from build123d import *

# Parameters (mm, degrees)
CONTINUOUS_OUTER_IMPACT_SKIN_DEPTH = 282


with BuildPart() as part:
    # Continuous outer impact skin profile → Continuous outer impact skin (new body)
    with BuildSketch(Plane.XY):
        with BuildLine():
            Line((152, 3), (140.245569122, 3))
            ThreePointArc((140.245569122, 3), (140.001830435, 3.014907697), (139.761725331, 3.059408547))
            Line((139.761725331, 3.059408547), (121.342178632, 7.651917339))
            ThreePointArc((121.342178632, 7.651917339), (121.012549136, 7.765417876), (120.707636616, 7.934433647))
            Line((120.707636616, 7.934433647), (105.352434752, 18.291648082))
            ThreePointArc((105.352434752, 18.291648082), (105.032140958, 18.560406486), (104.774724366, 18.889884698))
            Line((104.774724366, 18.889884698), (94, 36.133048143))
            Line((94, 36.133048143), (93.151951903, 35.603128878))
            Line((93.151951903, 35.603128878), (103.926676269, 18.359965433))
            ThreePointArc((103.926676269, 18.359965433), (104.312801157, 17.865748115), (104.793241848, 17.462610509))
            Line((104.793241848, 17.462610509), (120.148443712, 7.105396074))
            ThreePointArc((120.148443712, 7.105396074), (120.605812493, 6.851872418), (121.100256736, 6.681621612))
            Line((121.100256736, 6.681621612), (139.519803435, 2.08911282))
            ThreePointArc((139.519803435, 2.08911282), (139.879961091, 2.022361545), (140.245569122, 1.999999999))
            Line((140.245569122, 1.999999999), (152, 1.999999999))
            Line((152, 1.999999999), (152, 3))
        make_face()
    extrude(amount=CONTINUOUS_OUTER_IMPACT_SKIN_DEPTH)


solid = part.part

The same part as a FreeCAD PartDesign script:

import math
import FreeCAD as App
import Part
import Sketcher

V = App.Vector
Q = App.Units.Quantity

doc = App.newDocument("Part")
body = doc.addObject("PartDesign::Body", "Body")

# Sketch on XY plane
sketch1 = body.newObject("Sketcher::SketchObject", "Sketch")
sketch1.AttachmentSupport = (doc.getObject("XY_Plane"), [""])
sketch1.MapMode = "FlatFace"
sketch1.addGeometry([
    Part.LineSegment(V(152, 3, 0), V(140.245569, 3, 0)),  # 0
    Part.ArcOfCircle(Part.Circle(V(140.245569, 5, 0), V(0, 0, 1), 2), math.radians(-104), math.radians(-90)),  # 1
    Part.LineSegment(V(139.761725, 3.059409, 0), V(121.342179, 7.651917, 0)),  # 2
    Part.ArcOfCircle(Part.Circle(V(121.826022, 9.592509, 0), V(0, 0, 1), 2), math.radians(-124), math.radians(-104)),  # 3
    Part.LineSegment(V(120.707637, 7.934434, 0), V(105.352435, 18.291648, 0)),  # 4
    Part.ArcOfCircle(Part.Circle(V(106.470821, 19.949723, 0), V(0, 0, 1), 2), math.radians(-148), math.radians(-124)),  # 5
    Part.LineSegment(V(104.774724, 18.889885, 0), V(94, 36.133048, 0)),  # 6
    Part.LineSegment(V(94, 36.133048, 0), V(93.151952, 35.603129, 0)),  # 7
    Part.LineSegment(V(93.151952, 35.603129, 0), V(103.926676, 18.359965, 0)),  # 8
    Part.ArcOfCircle(Part.Circle(V(106.470821, 19.949723, 0), V(0, 0, 1), 3), math.radians(-148), math.radians(-124)),  # 9
    Part.LineSegment(V(104.793242, 17.462611, 0), V(120.148444, 7.105396, 0)),  # 10
    Part.ArcOfCircle(Part.Circle(V(121.826022, 9.592509, 0), V(0, 0, 1), 3), math.radians(-124), math.radians(-104)),  # 11
    Part.LineSegment(V(121.100257, 6.681622, 0), V(139.519803, 2.089113, 0)),  # 12
    Part.ArcOfCircle(Part.Circle(V(140.245569, 5, 0), V(0, 0, 1), 3), math.radians(-104), math.radians(-90)),  # 13
    Part.LineSegment(V(140.245569, 2, 0), V(152, 2, 0)),  # 14
    Part.LineSegment(V(152, 2, 0), V(152, 3, 0)),  # 15
], False)
sketch1.addConstraint([
    Sketcher.Constraint("Tangent", 0, 2, 1, 2),
    Sketcher.Constraint("Tangent", 1, 1, 2, 1),
    Sketcher.Constraint("Tangent", 2, 2, 3, 2),
    Sketcher.Constraint("Tangent", 3, 1, 4, 1),
    Sketcher.Constraint("Tangent", 4, 2, 5, 2),
    Sketcher.Constraint("Tangent", 5, 1, 6, 1),
    Sketcher.Constraint("Coincident", 6, 2, 7, 1),
    Sketcher.Constraint("Coincident", 7, 2, 8, 1),
    Sketcher.Constraint("Tangent", 8, 2, 9, 1),
    Sketcher.Constraint("Tangent", 9, 2, 10, 1),
    Sketcher.Constraint("Tangent", 10, 2, 11, 1),
    Sketcher.Constraint("Tangent", 11, 2, 12, 1),
    Sketcher.Constraint("Tangent", 12, 2, 13, 1),
    Sketcher.Constraint("Tangent", 13, 2, 14, 1),
    Sketcher.Constraint("Coincident", 14, 2, 15, 1),
    Sketcher.Constraint("Coincident", 15, 2, 0, 1),
    Sketcher.Constraint("Horizontal", 0),
    Sketcher.Constraint("Horizontal", 14),
    Sketcher.Constraint("Vertical", 15),
    Sketcher.Constraint("Coincident", 9, 3, 5, 3),
    Sketcher.Constraint("Coincident", 11, 3, 3, 3),
    Sketcher.Constraint("Coincident", 13, 3, 1, 3),
    Sketcher.Constraint("Equal", 1, 3),
    Sketcher.Constraint("Equal", 3, 5),
    Sketcher.Constraint("Equal", 9, 11),
    Sketcher.Constraint("Equal", 11, 13),
    Sketcher.Constraint("Perpendicular", 6, 7),
    Sketcher.Constraint("Perpendicular", 7, 8),
    Sketcher.Constraint("Radius", 1, 2.0),
    Sketcher.Constraint("Radius", 9, 3.0),
    Sketcher.Constraint("Angle", 2, Q("166 deg")),
    Sketcher.Constraint("Angle", 4, Q("146 deg")),
    Sketcher.Constraint("Angle", 6, Q("122 deg")),
    Sketcher.Constraint("DistanceY", -1, 1, 1, 3, 5.0),
    Sketcher.Constraint("DistanceX", -1, 1, 6, 2, 94.0),
    Sketcher.Constraint("DistanceX", -1, 1, 14, 2, 152.0),
    Sketcher.Constraint("DistanceX", 0, 2, 0, 1, 11.754431),
    Sketcher.Constraint("DistanceX", 5, 3, 3, 3, 15.355202),
    Sketcher.Constraint("DistanceY", 1, 1, 11, 3, 6.5331),
])
pad1 = body.newObject("PartDesign::Pad", "Pad")
pad1.Profile = sketch1
pad1.Length = 282

doc.recompute()
